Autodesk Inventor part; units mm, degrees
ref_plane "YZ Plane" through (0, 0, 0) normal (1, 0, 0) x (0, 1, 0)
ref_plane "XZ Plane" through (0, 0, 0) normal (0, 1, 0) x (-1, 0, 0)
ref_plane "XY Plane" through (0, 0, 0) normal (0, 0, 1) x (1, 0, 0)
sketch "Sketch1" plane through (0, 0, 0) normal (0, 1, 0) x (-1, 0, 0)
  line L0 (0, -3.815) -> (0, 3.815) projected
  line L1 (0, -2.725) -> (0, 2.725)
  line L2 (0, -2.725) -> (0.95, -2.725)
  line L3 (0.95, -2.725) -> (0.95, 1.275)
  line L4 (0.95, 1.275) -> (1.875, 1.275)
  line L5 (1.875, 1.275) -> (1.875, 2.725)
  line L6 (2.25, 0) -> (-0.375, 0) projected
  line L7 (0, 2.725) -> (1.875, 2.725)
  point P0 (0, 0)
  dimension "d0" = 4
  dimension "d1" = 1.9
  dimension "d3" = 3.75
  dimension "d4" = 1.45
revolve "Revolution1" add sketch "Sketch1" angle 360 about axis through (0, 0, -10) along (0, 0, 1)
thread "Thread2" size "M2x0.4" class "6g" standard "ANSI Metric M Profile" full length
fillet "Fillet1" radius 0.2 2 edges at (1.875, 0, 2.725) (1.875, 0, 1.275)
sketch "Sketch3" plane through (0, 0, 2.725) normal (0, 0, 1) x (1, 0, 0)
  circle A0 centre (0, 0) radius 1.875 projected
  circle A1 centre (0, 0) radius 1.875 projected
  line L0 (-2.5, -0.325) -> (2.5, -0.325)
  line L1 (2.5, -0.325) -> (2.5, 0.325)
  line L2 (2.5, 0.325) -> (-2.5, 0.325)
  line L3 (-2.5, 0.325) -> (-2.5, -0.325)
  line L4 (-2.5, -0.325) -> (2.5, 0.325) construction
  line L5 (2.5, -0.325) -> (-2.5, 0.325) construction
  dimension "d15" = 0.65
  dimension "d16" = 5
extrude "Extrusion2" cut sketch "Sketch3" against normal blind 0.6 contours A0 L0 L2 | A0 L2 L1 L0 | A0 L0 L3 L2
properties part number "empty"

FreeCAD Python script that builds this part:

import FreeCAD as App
import Part
import Sketcher


def edges_at(feature, points):
    """Names of the edges that pass closest to the given points."""
    edges = feature.Shape.Edges
    near = lambda p: min(range(len(edges)), key=lambda i: edges[i].distToShape(Part.Vertex(*p))[0])
    return sorted({f"Edge{near(p) + 1}" for p in points})


def add_polygon(sketch, points):
    """Adds a closed chain of lines whose ends are joined by coincident constraints."""
    first, n = sketch.GeometryCount, len(points)
    for a, b in zip(points, points[1:] + points[:1]):
        sketch.addGeometry(Part.LineSegment(App.Vector(*a, 0), App.Vector(*b, 0)), False)
    for i in range(n):
        sketch.addConstraint(Sketcher.Constraint("Coincident", first + i, 2, first + (i + 1) % n, 1))

doc = App.newDocument("Part")
body = doc.addObject("PartDesign::Body", "Body")

sketch1 = body.newObject("Sketcher::SketchObject", "Sketch")
sketch1.AttachmentSupport = (doc.getObject("XZ_Plane"), [""])
sketch1.MapMode = "FlatFace"
add_polygon(sketch1, [(0, -2.725), (-0.95, -2.725), (-0.95, 1.275), (-1.875, 1.275), (-1.875, 2.725), (0, 2.725)])
sketch1.addConstraint([
    Sketcher.Constraint("Horizontal", 0),
    Sketcher.Constraint("Vertical", 1),
    Sketcher.Constraint("Horizontal", 2),
    Sketcher.Constraint("Vertical", 3),
    Sketcher.Constraint("Horizontal", 4),
    Sketcher.Constraint("Vertical", 5),
    Sketcher.Constraint("Symmetric", 4, 2, 5, 2, -1, 1),
    Sketcher.Constraint("DistanceY", 1, 1, 1, 2, 4.0),
    Sketcher.Constraint("DistanceY", 3, 1, 3, 2, 1.45),
    Sketcher.Constraint("DistanceX", 0, 2, 0, 1, 0.95),
    Sketcher.Constraint("DistanceX", 2, 2, 2, 1, 0.925),
])
revolution = body.newObject("PartDesign::Revolution", "Revolution")
revolution.Profile = sketch1
revolution.ReferenceAxis = (sketch1, ["V_Axis"])
revolution.Angle = 360
doc.recompute()

fillet = body.newObject("PartDesign::Fillet", "Fillet")
fillet.Base = (revolution, edges_at(revolution, [(1.875, 0, 2.725), (1.875, 0, 1.275)]))
fillet.Radius = 0.2

sketch2 = body.newObject("Sketcher::SketchObject", "Sketch001")
sketch2.AttachmentSupport = (doc.getObject("XY_Plane"), [""])
sketch2.MapMode = "FlatFace"
sketch2.AttachmentOffset = App.Placement(App.Vector(0, 0, 2.725), App.Rotation())
add_polygon(sketch2, [(2.5, -0.325), (2.5, 0.325), (-2.5, 0.325), (-2.5, -0.325)])
sketch2.addConstraint([
    Sketcher.Constraint("Vertical", 0),
    Sketcher.Constraint("Horizontal", 1),
    Sketcher.Constraint("Vertical", 2),
    Sketcher.Constraint("Horizontal", 3),
    Sketcher.Constraint("Symmetric", 0, 2, 2, 2, -1, 1),
    Sketcher.Constraint("DistanceX", 1, 2, 1, 1, 5.0),
    Sketcher.Constraint("DistanceY", 0, 1, 0, 2, 0.65),
])
pocket1 = body.newObject("PartDesign::Pocket", "Pocket")
pocket1.Profile = sketch2
pocket1.Length = 0.6

doc.recompute()
